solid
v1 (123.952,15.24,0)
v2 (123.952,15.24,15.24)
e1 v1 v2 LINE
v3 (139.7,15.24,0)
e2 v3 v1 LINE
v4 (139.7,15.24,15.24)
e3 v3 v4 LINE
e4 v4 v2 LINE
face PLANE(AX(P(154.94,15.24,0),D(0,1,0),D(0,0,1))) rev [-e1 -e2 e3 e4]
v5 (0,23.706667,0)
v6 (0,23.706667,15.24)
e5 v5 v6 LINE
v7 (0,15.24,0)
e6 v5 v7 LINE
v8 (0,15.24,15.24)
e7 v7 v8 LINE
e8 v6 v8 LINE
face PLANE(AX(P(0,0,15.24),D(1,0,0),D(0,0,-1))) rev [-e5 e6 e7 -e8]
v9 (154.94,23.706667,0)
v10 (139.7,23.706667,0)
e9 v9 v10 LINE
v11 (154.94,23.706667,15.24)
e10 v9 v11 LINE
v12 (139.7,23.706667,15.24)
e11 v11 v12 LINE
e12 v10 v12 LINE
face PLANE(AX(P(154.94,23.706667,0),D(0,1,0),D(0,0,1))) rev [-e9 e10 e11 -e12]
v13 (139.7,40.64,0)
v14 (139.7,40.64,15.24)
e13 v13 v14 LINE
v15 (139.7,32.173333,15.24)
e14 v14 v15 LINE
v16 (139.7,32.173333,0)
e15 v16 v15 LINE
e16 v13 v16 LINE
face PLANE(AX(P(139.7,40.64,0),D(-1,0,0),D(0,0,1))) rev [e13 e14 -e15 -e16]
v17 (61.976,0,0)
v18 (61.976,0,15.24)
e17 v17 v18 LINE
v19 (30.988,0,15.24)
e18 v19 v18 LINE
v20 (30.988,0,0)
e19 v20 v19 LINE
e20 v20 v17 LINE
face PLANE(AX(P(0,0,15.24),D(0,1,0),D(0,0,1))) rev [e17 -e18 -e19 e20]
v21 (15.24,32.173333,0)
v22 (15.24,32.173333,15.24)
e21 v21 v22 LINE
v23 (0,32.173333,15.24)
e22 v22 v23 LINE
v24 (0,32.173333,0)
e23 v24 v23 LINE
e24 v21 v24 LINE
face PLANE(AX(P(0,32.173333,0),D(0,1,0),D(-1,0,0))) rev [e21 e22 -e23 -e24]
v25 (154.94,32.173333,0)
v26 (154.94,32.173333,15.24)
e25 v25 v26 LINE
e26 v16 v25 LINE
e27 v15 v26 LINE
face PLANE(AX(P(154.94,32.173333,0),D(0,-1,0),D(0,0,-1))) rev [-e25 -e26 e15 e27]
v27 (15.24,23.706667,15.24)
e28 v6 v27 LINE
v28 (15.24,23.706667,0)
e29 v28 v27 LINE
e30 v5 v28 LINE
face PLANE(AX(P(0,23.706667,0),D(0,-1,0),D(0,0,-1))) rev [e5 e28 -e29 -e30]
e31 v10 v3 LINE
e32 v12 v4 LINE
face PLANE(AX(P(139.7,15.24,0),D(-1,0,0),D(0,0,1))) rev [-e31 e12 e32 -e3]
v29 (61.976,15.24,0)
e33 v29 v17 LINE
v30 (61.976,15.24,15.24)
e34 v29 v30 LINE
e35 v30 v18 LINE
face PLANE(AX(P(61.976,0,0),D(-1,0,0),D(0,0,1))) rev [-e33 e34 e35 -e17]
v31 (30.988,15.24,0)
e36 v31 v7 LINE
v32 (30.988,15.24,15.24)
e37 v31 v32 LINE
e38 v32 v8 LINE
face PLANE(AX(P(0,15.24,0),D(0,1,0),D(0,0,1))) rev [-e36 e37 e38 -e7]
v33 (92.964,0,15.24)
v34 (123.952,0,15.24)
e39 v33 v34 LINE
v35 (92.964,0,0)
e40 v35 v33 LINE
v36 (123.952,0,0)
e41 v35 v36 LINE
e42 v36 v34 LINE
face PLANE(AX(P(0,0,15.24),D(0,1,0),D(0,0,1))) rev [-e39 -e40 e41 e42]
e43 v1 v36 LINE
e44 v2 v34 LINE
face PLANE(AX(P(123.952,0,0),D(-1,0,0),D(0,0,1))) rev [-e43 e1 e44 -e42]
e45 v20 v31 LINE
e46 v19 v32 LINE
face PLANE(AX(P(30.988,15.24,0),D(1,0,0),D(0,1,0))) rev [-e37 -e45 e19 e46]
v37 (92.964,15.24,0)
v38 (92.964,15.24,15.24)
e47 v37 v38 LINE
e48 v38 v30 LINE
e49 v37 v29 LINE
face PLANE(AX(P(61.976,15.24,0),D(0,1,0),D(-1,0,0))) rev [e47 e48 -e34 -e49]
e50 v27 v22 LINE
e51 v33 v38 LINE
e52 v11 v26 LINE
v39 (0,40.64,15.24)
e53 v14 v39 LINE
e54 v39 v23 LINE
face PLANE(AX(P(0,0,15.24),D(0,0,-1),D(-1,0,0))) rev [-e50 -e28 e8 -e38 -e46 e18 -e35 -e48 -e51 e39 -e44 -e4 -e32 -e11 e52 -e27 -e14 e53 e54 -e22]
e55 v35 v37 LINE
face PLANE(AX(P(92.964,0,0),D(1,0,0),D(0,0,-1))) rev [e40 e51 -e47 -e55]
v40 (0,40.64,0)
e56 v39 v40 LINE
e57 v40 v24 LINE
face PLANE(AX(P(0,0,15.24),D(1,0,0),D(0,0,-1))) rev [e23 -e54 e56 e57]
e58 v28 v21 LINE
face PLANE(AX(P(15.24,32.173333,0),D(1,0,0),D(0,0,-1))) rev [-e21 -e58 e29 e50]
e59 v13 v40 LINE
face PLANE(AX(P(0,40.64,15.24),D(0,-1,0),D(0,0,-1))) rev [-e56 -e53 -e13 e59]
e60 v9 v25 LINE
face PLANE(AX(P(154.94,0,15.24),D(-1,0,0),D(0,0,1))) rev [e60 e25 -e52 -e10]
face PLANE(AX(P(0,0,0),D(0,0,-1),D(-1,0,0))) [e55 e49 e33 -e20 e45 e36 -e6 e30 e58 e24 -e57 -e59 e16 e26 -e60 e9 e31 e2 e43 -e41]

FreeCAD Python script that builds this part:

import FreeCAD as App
import Part
import Sketcher

V = App.Vector
Q = App.Units.Quantity

doc = App.newDocument("Part")
body = doc.addObject("PartDesign::Body", "Body")

# Sketch on XY plane
sketch1 = doc.addObject("Sketcher::SketchObject", "Sketch")
body.addObject(sketch1)
sketch1.AttachmentSupport = (doc.XY_Plane, [""])
sketch1.MapMode = "FlatFace"
sketch1.addGeometry([
    Part.LineSegment(V(0, 41, 0), V(0, 0, 0)),
    Part.LineSegment(V(0, 0, 0), V(155, 0, 0)),
    Part.LineSegment(V(155, 0, 0), V(155, 41, 0)),
    Part.LineSegment(V(155, 41, 0), V(0, 41, 0)),
], False)
sketch1.addConstraint([
    Sketcher.Constraint("Coincident", 0, 2, 1, 1),
    Sketcher.Constraint("Coincident", 1, 2, 2, 1),
    Sketcher.Constraint("Coincident", 2, 2, 3, 1),
    Sketcher.Constraint("Coincident", 3, 2, 0, 1),
    Sketcher.Constraint("Vertical", 0),
    Sketcher.Constraint("Horizontal", 1),
    Sketcher.Constraint("Vertical", 2),
    Sketcher.Constraint("Horizontal", 3),
    Sketcher.Constraint("Coincident", 0, 2, -1, 1),
    Sketcher.Constraint("DistanceX", 1, 1, 1, 2, Q("6.1 in")),
    Sketcher.Constraint("DistanceY", 0, 2, 0, 1, Q("1.6 in")),
])
pad1 = doc.addObject("PartDesign::Pad", "Pad")
body.addObject(pad1)
pad1.Profile = sketch1
pad1.Length = Q("0.6 in")

# Sketch on XY plane
sketch2 = doc.addObject("Sketcher::SketchObject", "Sketch001")
body.addObject(sketch2)
sketch2.AttachmentSupport = (doc.XY_Plane, [""])
sketch2.MapMode = "FlatFace"
sketch2.AttachmentOffset = App.Placement(V(0, 0, 0.6 * 25.4), App.Rotation())
sketch2.addGeometry([
    Part.LineSegment(V(0, 15, 0), V(0, 0, 0)),  # 0
    Part.LineSegment(V(0, 0, 0), V(31, 0, 0)),  # 1
    Part.LineSegment(V(31, 0, 0), V(31, 15, 0)),  # 2
    Part.LineSegment(V(31, 15, 0), V(0, 15, 0)),  # 3
    Part.LineSegment(V(62, 15, 0), V(62, 0, 0)),  # 4
    Part.LineSegment(V(62, 0, 0), V(93, 0, 0)),  # 5
    Part.LineSegment(V(93, 0, 0), V(93, 15, 0)),  # 6
    Part.LineSegment(V(93, 15, 0), V(62, 15, 0)),  # 7
    Part.LineSegment(V(124, 15, 0), V(124, 0, 0)),  # 8
    Part.LineSegment(V(124, 0, 0), V(155, 0, 0)),  # 9
    Part.LineSegment(V(155, 0, 0), V(155, 15, 0)),  # 10
    Part.LineSegment(V(155, 15, 0), V(124, 15, 0)),  # 11
], False)
sketch2.addConstraint([
    Sketcher.Constraint("Coincident", 0, 2, 1, 1),
    Sketcher.Constraint("Coincident", 1, 2, 2, 1),
    Sketcher.Constraint("Coincident", 2, 2, 3, 1),
    Sketcher.Constraint("Coincident", 3, 2, 0, 1),
    Sketcher.Constraint("Coincident", 4, 2, 5, 1),
    Sketcher.Constraint("Coincident", 5, 2, 6, 1),
    Sketcher.Constraint("Coincident", 6, 2, 7, 1),
    Sketcher.Constraint("Coincident", 7, 2, 4, 1),
    Sketcher.Constraint("Coincident", 8, 2, 9, 1),
    Sketcher.Constraint("Coincident", 9, 2, 10, 1),
    Sketcher.Constraint("Coincident", 10, 2, 11, 1),
    Sketcher.Constraint("Coincident", 11, 2, 8, 1),
    Sketcher.Constraint("Vertical", 0),
    Sketcher.Constraint("Horizontal", 1),
    Sketcher.Constraint("Vertical", 2),
    Sketcher.Constraint("Horizontal", 3),
    Sketcher.Constraint("Vertical", 4),
    Sketcher.Constraint("Horizontal", 5),
    Sketcher.Constraint("Vertical", 6),
    Sketcher.Constraint("Horizontal", 7),
    Sketcher.Constraint("Vertical", 8),
    Sketcher.Constraint("Horizontal", 9),
    Sketcher.Constraint("Vertical", 10),
    Sketcher.Constraint("Horizontal", 11),
    Sketcher.Constraint("Coincident", 0, 2, -1, 1),
    Sketcher.Constraint("PointOnObject", 4, 2, -1),
    Sketcher.Constraint("PointOnObject", 8, 2, -1),
    Sketcher.Constraint("Horizontal", 3, 2, 6, 2),
    Sketcher.Constraint("Horizontal", 7, 2, 10, 2),
    Sketcher.Constraint("Equal", 3, 5),
    Sketcher.Constraint("Equal", 7, 9),
    Sketcher.Constraint("DistanceY", 0, 2, 0, 1, Q("0.6 in")),
    Sketcher.Constraint("DistanceX", 1, 1, 1, 2, Q("1.22 in")),
    Sketcher.Constraint("DistanceX", -1, 1, 9, 2, Q("6.1 in")),
    Sketcher.Constraint("DistanceX", -1, 1, 4, 2, Q("2.44 in")),
])
pocket1 = doc.addObject("PartDesign::Pocket", "Pocket")
body.addObject(pocket1)
pocket1.Profile = sketch2
pocket1.Type = "ThroughAll"

# Sketch on XY plane
sketch3 = doc.addObject("Sketcher::SketchObject", "Sketch002")
body.addObject(sketch3)
sketch3.AttachmentSupport = (doc.XY_Plane, [""])
sketch3.MapMode = "FlatFace"
sketch3.AttachmentOffset = App.Placement(V(0, 0, 0.6 * 25.4), App.Rotation())
sketch3.addGeometry([
    Part.LineSegment(V(0, 32, 0), V(0, 24, 0)),  # 0
    Part.LineSegment(V(0, 24, 0), V(15, 24, 0)),  # 1
    Part.LineSegment(V(15, 24, 0), V(15, 32, 0)),  # 2
    Part.LineSegment(V(15, 32, 0), V(0, 32, 0)),  # 3
    Part.LineSegment(V(140, 41, 0), V(140, 32, 0)),  # 4
    Part.LineSegment(V(140, 32, 0), V(155, 32, 0)),  # 5
    Part.LineSegment(V(155, 32, 0), V(155, 41, 0)),  # 6
    Part.LineSegment(V(155, 41, 0), V(140, 41, 0)),  # 7
    Part.LineSegment(V(140, 24, 0), V(140, 15, 0)),  # 8
    Part.LineSegment(V(140, 15, 0), V(155, 15, 0)),  # 9
    Part.LineSegment(V(155, 15, 0), V(155, 24, 0)),  # 10
    Part.LineSegment(V(155, 24, 0), V(140, 24, 0)),  # 11
], False)
sketch3.addConstraint([
    Sketcher.Constraint("Coincident", 0, 2, 1, 1),
    Sketcher.Constraint("Coincident", 1, 2, 2, 1),
    Sketcher.Constraint("Coincident", 2, 2, 3, 1),
    Sketcher.Constraint("Coincident", 3, 2, 0, 1),
    Sketcher.Constraint("Coincident", 4, 2, 5, 1),
    Sketcher.Constraint("Coincident", 5, 2, 6, 1),
    Sketcher.Constraint("Coincident", 6, 2, 7, 1),
    Sketcher.Constraint("Coincident", 7, 2, 4, 1),
    Sketcher.Constraint("Coincident", 8, 2, 9, 1),
    Sketcher.Constraint("Coincident", 9, 2, 10, 1),
    Sketcher.Constraint("Coincident", 10, 2, 11, 1),
    Sketcher.Constraint("Coincident", 11, 2, 8, 1),
    Sketcher.Constraint("Vertical", 0),
    Sketcher.Constraint("Horizontal", 1),
    Sketcher.Constraint("Vertical", 2),
    Sketcher.Constraint("Horizontal", 3),
    Sketcher.Constraint("Vertical", 4),
    Sketcher.Constraint("Horizontal", 5),
    Sketcher.Constraint("Vertical", 6),
    Sketcher.Constraint("Horizontal", 7),
    Sketcher.Constraint("Vertical", 8),
    Sketcher.Constraint("Horizontal", 9),
    Sketcher.Constraint("Vertical", 10),
    Sketcher.Constraint("Horizontal", 11),
    Sketcher.Constraint("PointOnObject", 0, 2, -2),
    Sketcher.Constraint("Horizontal", 3, 2, 4, 2),
    Sketcher.Constraint("Horizontal", 1, 2, 10, 2),
    Sketcher.Constraint("Vertical", 7, 2, 8, 2),
    Sketcher.Constraint("Vertical", 6, 2, 9, 2),
    Sketcher.Constraint("Equal", 3, 5),
    Sketcher.Constraint("Equal", 2, 4),
    Sketcher.Constraint("Equal", 6, 8),
    Sketcher.Constraint("DistanceX", 1, 1, 1, 2, Q("0.6 in")),
    Sketcher.Constraint("DistanceY", 8, 2, 7, 2, Q("1 in")),
    Sketcher.Constraint("DistanceX", -1, 1, 4, 2, Q("5.5 in")),
    Sketcher.Constraint("DistanceY", -1, 1, 6, 2, Q("1.6 in")),
])
pocket2 = doc.addObject("PartDesign::Pocket", "Pocket001")
body.addObject(pocket2)
pocket2.Profile = sketch3
pocket2.Type = "ThroughAll"

doc.recompute()
